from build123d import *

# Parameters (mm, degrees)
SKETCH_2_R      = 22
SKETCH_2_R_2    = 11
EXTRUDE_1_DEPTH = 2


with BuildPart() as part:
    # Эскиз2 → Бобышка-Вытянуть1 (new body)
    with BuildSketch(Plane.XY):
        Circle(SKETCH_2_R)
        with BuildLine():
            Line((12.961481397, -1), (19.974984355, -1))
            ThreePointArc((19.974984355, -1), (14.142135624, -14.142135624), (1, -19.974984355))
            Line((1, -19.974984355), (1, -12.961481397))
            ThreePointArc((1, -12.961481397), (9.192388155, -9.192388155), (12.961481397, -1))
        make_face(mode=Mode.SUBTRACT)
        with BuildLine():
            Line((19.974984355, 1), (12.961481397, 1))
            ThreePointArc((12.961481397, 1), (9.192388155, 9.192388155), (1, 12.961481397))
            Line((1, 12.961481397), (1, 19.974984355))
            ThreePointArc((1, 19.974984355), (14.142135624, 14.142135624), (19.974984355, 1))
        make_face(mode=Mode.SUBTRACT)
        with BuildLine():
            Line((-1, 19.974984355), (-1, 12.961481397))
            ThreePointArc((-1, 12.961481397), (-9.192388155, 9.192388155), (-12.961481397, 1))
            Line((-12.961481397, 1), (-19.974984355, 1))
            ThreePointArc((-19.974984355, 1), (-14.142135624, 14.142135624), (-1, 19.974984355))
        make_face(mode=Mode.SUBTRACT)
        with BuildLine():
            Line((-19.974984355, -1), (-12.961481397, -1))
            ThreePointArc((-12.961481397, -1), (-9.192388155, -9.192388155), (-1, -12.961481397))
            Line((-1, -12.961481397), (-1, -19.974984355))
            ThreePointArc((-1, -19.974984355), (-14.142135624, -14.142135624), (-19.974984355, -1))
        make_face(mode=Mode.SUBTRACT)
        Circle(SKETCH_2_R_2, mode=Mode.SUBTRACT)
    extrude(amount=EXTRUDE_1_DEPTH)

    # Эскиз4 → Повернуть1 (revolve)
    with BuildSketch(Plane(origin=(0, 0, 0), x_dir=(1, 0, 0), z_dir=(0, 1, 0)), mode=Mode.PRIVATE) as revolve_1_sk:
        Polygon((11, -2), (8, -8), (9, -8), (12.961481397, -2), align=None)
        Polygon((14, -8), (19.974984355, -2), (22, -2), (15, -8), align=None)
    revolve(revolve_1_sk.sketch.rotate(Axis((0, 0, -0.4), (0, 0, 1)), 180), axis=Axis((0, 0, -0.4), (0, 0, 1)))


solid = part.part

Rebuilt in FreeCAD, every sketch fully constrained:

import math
import FreeCAD as App
import Part
import Sketcher

V = App.Vector
Q = App.Units.Quantity


def add_polygon(sketch, points):
    """Adds a closed chain of lines whose ends are joined by coincident constraints."""
    first, n = sketch.GeometryCount, len(points)
    for a, b in zip(points, points[1:] + points[:1]):
        sketch.addGeometry(Part.LineSegment(App.Vector(*a, 0), App.Vector(*b, 0)), False)
    for i in range(n):
        sketch.addConstraint(Sketcher.Constraint("Coincident", first + i, 2, first + (i + 1) % n, 1))

doc = App.newDocument("Part")
body = doc.addObject("PartDesign::Body", "Body")

# Sketch on XY plane
sketch1 = body.newObject("Sketcher::SketchObject", "Sketch")
sketch1.AttachmentSupport = (doc.getObject("XY_Plane"), [""])
sketch1.MapMode = "FlatFace"
sketch1.addGeometry([
    Part.Circle(V(0, 0, 0), V(0, 0, 1), 22),  # 0
    Part.ArcOfCircle(Part.Circle(V(0, 0, 0), V(0, 0, 1), 20), math.radians(-177.134016), math.radians(-92.865984)),  # 1
    Part.LineSegment(V(-19.974984, -1, 0), V(-12.961481, -1, 0)),  # 2
    Part.ArcOfCircle(Part.Circle(V(0, 0, 0), V(0, 0, 1), 13), math.radians(-175.588274), math.radians(-94.411726)),  # 3
    Part.LineSegment(V(-1, -12.961481, 0), V(-1, -19.974984, 0)),  # 4
    Part.ArcOfCircle(Part.Circle(V(0, 0, 0), V(0, 0, 1), 13), math.radians(-85.588274), math.radians(-4.411726)),  # 5
    Part.LineSegment(V(12.961481, -1, 0), V(19.974984, -1, 0)),  # 6
    Part.ArcOfCircle(Part.Circle(V(0, 0, 0), V(0, 0, 1), 20), math.radians(-87.134016), math.radians(-2.865984)),  # 7
    Part.LineSegment(V(1, -19.974984, 0), V(1, -12.961481, 0)),  # 8
    Part.ArcOfCircle(Part.Circle(V(0, 0, 0), V(0, 0, 1), 20), math.radians(92.865984), math.radians(177.134016)),  # 9
    Part.LineSegment(V(-1, 19.974984, 0), V(-1, 12.961481, 0)),  # 10
    Part.ArcOfCircle(Part.Circle(V(0, 0, 0), V(0, 0, 1), 13), math.radians(94.411726), math.radians(175.588274)),  # 11
    Part.LineSegment(V(-12.961481, 1, 0), V(-19.974984, 1, 0)),  # 12
    Part.Circle(V(0, 0, 0), V(0, 0, 1), 11),  # 13
    Part.ArcOfCircle(Part.Circle(V(0, 0, 0), V(0, 0, 1), 20), math.radians(2.865984), math.radians(87.134016)),  # 14
    Part.LineSegment(V(19.974984, 1, 0), V(12.961481, 1, 0)),  # 15
    Part.ArcOfCircle(Part.Circle(V(0, 0, 0), V(0, 0, 1), 13), math.radians(4.411726), math.radians(85.588274)),  # 16
    Part.LineSegment(V(1, 12.961481, 0), V(1, 19.974984, 0)),  # 17
], False)
sketch1.addConstraint([
    Sketcher.Constraint("Coincident", 1, 1, 2, 1),
    Sketcher.Constraint("Coincident", 2, 2, 3, 1),
    Sketcher.Constraint("Coincident", 3, 2, 4, 1),
    Sketcher.Constraint("Coincident", 4, 2, 1, 2),
    Sketcher.Constraint("Coincident", 5, 2, 6, 1),
    Sketcher.Constraint("Coincident", 6, 2, 7, 2),
    Sketcher.Constraint("Coincident", 7, 1, 8, 1),
    Sketcher.Constraint("Coincident", 8, 2, 5, 1),
    Sketcher.Constraint("Coincident", 9, 1, 10, 1),
    Sketcher.Constraint("Coincident", 10, 2, 11, 1),
    Sketcher.Constraint("Coincident", 11, 2, 12, 1),
    Sketcher.Constraint("Coincident", 12, 2, 9, 2),
    Sketcher.Constraint("Coincident", 14, 1, 15, 1),
    Sketcher.Constraint("Coincident", 15, 2, 16, 1),
    Sketcher.Constraint("Coincident", 16, 2, 17, 1),
    Sketcher.Constraint("Coincident", 17, 2, 14, 2),
    Sketcher.Constraint("Horizontal", 2),
    Sketcher.Constraint("Vertical", 4),
    Sketcher.Constraint("Horizontal", 6),
    Sketcher.Constraint("Vertical", 8),
    Sketcher.Constraint("Vertical", 10),
    Sketcher.Constraint("Horizontal", 12),
    Sketcher.Constraint("Horizontal", 15),
    Sketcher.Constraint("Vertical", 17),
    Sketcher.Constraint("Coincident", 0, 3, -1, 1),
    Sketcher.Constraint("Coincident", 1, 3, -1, 1),
    Sketcher.Constraint("Coincident", 3, 3, -1, 1),
    Sketcher.Constraint("Coincident", 5, 3, -1, 1),
    Sketcher.Constraint("Coincident", 7, 3, -1, 1),
    Sketcher.Constraint("Coincident", 9, 3, -1, 1),
    Sketcher.Constraint("Coincident", 11, 3, -1, 1),
    Sketcher.Constraint("Coincident", 13, 3, -1, 1),
    Sketcher.Constraint("Coincident", 14, 3, -1, 1),
    Sketcher.Constraint("Coincident", 16, 3, -1, 1),
    Sketcher.Constraint("Equal", 3, 5),
    Sketcher.Constraint("Equal", 1, 7),
    Sketcher.Constraint("Equal", 7, 9),
    Sketcher.Constraint("Equal", 5, 11),
    Sketcher.Constraint("Equal", 9, 14),
    Sketcher.Constraint("Equal", 11, 16),
    Sketcher.Constraint("Horizontal", 2, 2, 5, 2),
    Sketcher.Constraint("Horizontal", 4, 2, 7, 1),
    Sketcher.Constraint("Horizontal", 12, 2, 14, 1),
    Sketcher.Constraint("Horizontal", 10, 2, 16, 2),
    Sketcher.Constraint("Vertical", 4, 2, 9, 1),
    Sketcher.Constraint("Vertical", 2, 2, 11, 2),
    Sketcher.Constraint("Equal", 15, 4),
    Sketcher.Constraint("Diameter", 0, Q("44 mm")),
    Sketcher.Constraint("Diameter", 13, Q("22 mm")),
    Sketcher.Constraint("Radius", 1, Q("20 mm")),
    Sketcher.Constraint("Radius", 3, Q("13 mm")),
    Sketcher.Constraint("DistanceY", 1, 1, -1, 1, Q("1 mm")),
])
pad1 = body.newObject("PartDesign::Pad", "Pad")
pad1.Profile = sketch1
pad1.Length = 2

# Sketch on XZ plane
sketch2 = body.newObject("Sketcher::SketchObject", "Sketch001")
sketch2.AttachmentSupport = (doc.getObject("XZ_Plane"), [""])
sketch2.MapMode = "FlatFace"
add_polygon(sketch2, [(11, 2), (8, 8), (9, 8), (12.961481, 2)])  # lines 0-3
add_polygon(sketch2, [(19.974984, 2), (14, 8), (15, 8), (22, 2)])  # lines 4-7
sketch2.addConstraint([
    Sketcher.Constraint("Horizontal", 1),
    Sketcher.Constraint("Horizontal", 3),
    Sketcher.Constraint("Horizontal", 5),
    Sketcher.Constraint("Horizontal", 7),
    Sketcher.Constraint("Horizontal", 1, 2, 4, 2),
    Sketcher.Constraint("Horizontal", 3, 2, 6, 2),
    Sketcher.Constraint("Equal", 1, 5),
    Sketcher.Constraint("DistanceX", 1, 1, 1, 2, Q("1 mm")),
    Sketcher.Constraint("DistanceX", -1, 1, 0, 2, Q("8 mm")),
    Sketcher.Constraint("DistanceY", -1, 1, 0, 2, Q("8 mm")),
    Sketcher.Constraint("DistanceY", -1, 1, 2, 2, Q("2 mm")),
    Sketcher.Constraint("DistanceX", -1, 1, 3, 2, Q("11 mm")),
    Sketcher.Constraint("DistanceX", -1, 1, 4, 2, Q("14 mm")),
    Sketcher.Constraint("DistanceX", -1, 1, 6, 2, Q("22 mm")),
    Sketcher.Constraint("DistanceX", 3, 2, 3, 1, Q("1.961481 mm")),
    Sketcher.Constraint("Distance", 4, Q("8.467611 mm")),
])
revolution = body.newObject("PartDesign::Revolution", "Revolution")
revolution.Profile = sketch2
revolution.ReferenceAxis = (sketch2, ["V_Axis"])
revolution.Angle = 360

doc.recompute()
